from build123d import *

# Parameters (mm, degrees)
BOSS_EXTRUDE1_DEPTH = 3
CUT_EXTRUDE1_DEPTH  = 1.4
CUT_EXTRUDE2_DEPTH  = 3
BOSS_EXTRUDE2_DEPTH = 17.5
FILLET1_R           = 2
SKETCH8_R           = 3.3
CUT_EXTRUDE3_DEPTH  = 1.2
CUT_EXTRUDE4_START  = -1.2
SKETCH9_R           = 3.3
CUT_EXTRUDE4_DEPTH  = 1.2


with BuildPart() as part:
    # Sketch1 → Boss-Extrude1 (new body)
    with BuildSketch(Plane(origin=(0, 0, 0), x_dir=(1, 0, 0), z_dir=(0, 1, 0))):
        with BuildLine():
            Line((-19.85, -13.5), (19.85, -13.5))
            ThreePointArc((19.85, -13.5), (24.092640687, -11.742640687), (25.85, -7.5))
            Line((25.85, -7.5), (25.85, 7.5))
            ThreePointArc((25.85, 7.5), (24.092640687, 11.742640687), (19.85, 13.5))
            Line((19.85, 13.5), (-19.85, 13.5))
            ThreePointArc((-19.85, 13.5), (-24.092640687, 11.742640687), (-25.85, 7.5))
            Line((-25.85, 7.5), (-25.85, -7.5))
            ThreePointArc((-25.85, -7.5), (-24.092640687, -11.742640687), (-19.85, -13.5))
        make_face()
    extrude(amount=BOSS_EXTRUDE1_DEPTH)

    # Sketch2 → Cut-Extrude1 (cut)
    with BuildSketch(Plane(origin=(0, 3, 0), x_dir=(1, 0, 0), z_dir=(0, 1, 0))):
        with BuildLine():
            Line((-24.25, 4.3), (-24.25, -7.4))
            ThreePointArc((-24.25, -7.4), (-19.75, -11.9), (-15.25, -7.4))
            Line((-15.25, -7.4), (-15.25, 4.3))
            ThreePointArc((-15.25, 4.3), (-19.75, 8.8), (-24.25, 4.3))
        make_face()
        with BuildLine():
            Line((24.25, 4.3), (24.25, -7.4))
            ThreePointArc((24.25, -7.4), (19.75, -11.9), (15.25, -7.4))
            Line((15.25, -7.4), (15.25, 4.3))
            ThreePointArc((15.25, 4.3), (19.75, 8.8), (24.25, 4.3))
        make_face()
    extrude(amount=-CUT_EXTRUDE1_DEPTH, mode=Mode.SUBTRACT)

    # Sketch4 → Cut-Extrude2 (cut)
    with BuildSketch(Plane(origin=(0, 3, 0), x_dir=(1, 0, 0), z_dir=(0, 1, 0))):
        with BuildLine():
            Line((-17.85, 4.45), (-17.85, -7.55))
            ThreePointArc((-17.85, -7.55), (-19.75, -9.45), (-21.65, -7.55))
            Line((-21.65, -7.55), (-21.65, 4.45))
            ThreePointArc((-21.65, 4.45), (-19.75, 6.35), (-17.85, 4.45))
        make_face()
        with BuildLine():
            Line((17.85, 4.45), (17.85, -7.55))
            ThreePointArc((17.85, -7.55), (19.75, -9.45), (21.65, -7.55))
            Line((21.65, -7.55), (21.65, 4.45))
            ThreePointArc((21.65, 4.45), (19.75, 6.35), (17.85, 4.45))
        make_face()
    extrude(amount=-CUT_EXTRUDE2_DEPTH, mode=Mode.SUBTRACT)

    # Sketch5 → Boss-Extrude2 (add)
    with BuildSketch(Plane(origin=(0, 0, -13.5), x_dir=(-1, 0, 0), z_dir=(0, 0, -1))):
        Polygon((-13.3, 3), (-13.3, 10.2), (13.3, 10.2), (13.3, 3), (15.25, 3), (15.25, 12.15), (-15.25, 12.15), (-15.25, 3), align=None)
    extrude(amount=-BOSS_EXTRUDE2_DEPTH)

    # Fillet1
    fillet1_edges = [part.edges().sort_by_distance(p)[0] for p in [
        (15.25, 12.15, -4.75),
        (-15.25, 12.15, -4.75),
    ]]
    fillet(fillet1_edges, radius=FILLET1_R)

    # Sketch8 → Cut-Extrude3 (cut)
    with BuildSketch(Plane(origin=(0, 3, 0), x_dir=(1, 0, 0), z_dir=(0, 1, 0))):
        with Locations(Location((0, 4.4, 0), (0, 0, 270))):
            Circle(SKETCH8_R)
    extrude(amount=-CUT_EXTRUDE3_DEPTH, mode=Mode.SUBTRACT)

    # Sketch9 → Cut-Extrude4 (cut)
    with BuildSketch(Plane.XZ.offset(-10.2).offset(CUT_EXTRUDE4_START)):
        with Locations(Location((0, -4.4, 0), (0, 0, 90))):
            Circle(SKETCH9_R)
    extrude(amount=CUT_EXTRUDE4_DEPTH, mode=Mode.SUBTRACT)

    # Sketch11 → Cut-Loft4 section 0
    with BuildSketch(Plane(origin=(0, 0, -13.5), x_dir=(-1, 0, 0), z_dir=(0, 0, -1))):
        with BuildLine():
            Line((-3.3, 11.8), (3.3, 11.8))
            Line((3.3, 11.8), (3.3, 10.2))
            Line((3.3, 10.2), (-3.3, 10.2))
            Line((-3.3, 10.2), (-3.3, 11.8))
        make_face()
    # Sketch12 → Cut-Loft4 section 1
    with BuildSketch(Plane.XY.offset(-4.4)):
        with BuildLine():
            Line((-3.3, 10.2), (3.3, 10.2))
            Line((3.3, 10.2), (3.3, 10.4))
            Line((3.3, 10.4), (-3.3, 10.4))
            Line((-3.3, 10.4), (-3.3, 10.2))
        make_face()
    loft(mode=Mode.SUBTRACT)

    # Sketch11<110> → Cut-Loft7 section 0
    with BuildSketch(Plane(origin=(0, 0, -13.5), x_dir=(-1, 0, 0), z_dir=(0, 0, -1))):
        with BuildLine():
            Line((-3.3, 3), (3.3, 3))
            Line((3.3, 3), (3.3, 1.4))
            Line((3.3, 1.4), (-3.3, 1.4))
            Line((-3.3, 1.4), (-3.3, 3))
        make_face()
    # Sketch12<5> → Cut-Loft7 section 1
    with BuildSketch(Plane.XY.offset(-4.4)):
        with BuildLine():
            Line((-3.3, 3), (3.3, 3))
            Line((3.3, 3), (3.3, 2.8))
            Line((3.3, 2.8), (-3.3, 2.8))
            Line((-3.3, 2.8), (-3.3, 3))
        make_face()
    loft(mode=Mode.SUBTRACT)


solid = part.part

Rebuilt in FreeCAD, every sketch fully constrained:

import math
import FreeCAD as App
import Part
import Sketcher

V = App.Vector


def edges_at(feature, points):
    """Names of the edges that pass closest to the given points."""
    edges = feature.Shape.Edges
    near = lambda p: min(range(len(edges)), key=lambda i: edges[i].distToShape(Part.Vertex(*p))[0])
    return sorted({f"Edge{near(p) + 1}" for p in points})

doc = App.newDocument("Part")
body = doc.addObject("PartDesign::Body", "Body")

sketch1 = doc.addObject("Sketcher::SketchObject", "Sketch")
body.addObject(sketch1)
sketch1.AttachmentSupport = (doc.XZ_Plane, [""])
sketch1.MapMode = "FlatFace"
sketch1.addGeometry(Part.LineSegment(V(-20, 14, 0), V(20, 14, 0)), False)
sketch1.addGeometry(Part.ArcOfCircle(Part.Circle(V(20, 8, 0), V(0, 0, 1), 6), math.radians(0), math.radians(90)), False)
sketch1.addGeometry(Part.LineSegment(V(26, 8, 0), V(26, -8, 0)), False)
sketch1.addGeometry(Part.ArcOfCircle(Part.Circle(V(20, -8, 0), V(0, 0, 1), 6), math.radians(-90), math.radians(0)), False)
sketch1.addGeometry(Part.LineSegment(V(20, -14, 0), V(-20, -14, 0)), False)
sketch1.addGeometry(Part.ArcOfCircle(Part.Circle(V(-20, -8, 0), V(0, 0, 1), 6), math.radians(180), math.radians(270)), False)
sketch1.addGeometry(Part.LineSegment(V(-26, -8, 0), V(-26, 8, 0)), False)
sketch1.addGeometry(Part.ArcOfCircle(Part.Circle(V(-20, 8, 0), V(0, 0, 1), 6), math.radians(90), math.radians(180)), False)
sketch1.addConstraint(Sketcher.Constraint("Tangent", 0, 2, 1, 2))
sketch1.addConstraint(Sketcher.Constraint("Tangent", 1, 1, 2, 1))
sketch1.addConstraint(Sketcher.Constraint("Tangent", 2, 2, 3, 2))
sketch1.addConstraint(Sketcher.Constraint("Tangent", 3, 1, 4, 1))
sketch1.addConstraint(Sketcher.Constraint("Tangent", 4, 2, 5, 2))
sketch1.addConstraint(Sketcher.Constraint("Tangent", 5, 1, 6, 1))
sketch1.addConstraint(Sketcher.Constraint("Tangent", 6, 2, 7, 2))
sketch1.addConstraint(Sketcher.Constraint("Tangent", 7, 1, 0, 1))
sketch1.addConstraint(Sketcher.Constraint("Horizontal", 0))
sketch1.addConstraint(Sketcher.Constraint("Vertical", 2))
sketch1.addConstraint(Sketcher.Constraint("Horizontal", 4))
sketch1.addConstraint(Sketcher.Constraint("Vertical", 6))
sketch1.addConstraint(Sketcher.Constraint("Equal", 1, 3))
sketch1.addConstraint(Sketcher.Constraint("Equal", 3, 5))
sketch1.addConstraint(Sketcher.Constraint("Equal", 5, 7))
sketch1.addConstraint(Sketcher.Constraint("Symmetric", 1, 3, 5, 3, -1, 1))
sketch1.addConstraint(Sketcher.Constraint("Radius", 1, 6.0))
sketch1.addConstraint(Sketcher.Constraint("DistanceY", 2, 2, 2, 1, 15.0))
sketch1.addConstraint(Sketcher.Constraint("DistanceX", 0, 1, 0, 2, 39.7))
pad1 = doc.addObject("PartDesign::Pad", "Pad")
body.addObject(pad1)
pad1.Profile = sketch1
pad1.Length = 3
pad1.Reversed = True

sketch2 = doc.addObject("Sketcher::SketchObject", "Sketch001")
body.addObject(sketch2)
sketch2.AttachmentSupport = (doc.XZ_Plane, [""])
sketch2.MapMode = "FlatFace"
sketch2.AttachmentOffset = App.Placement(V(0, 0, -3), App.Rotation())
sketch2.addGeometry(Part.LineSegment(V(-24.2, -4.3, 0), V(-24.2, 7.4, 0)), False)
sketch2.addGeometry(Part.ArcOfCircle(Part.Circle(V(-19.8, 7.4, 0), V(0, 0, 1), 4.5), math.radians(0), math.radians(180)), False)
sketch2.addGeometry(Part.LineSegment(V(-15.2, 7.4, 0), V(-15.2, -4.3, 0)), False)
sketch2.addGeometry(Part.ArcOfCircle(Part.Circle(V(-19.8, -4.3, 0), V(0, 0, 1), 4.5), math.radians(180), math.radians(360)), False)
sketch2.addGeometry(Part.LineSegment(V(24.2, 7.4, 0), V(24.2, -4.3, 0)), False)
sketch2.addGeometry(Part.ArcOfCircle(Part.Circle(V(19.8, -4.3, 0), V(0, 0, 1), 4.5), math.radians(180), math.radians(360)), False)
sketch2.addGeometry(Part.LineSegment(V(15.2, -4.3, 0), V(15.2, 7.4, 0)), False)
sketch2.addGeometry(Part.ArcOfCircle(Part.Circle(V(19.8, 7.4, 0), V(0, 0, 1), 4.5), math.radians(0), math.radians(180)), False)
sketch2.addConstraint(Sketcher.Constraint("Tangent", 0, 2, 1, 2))
sketch2.addConstraint(Sketcher.Constraint("Tangent", 1, 1, 2, 1))
sketch2.addConstraint(Sketcher.Constraint("Tangent", 2, 2, 3, 2))
sketch2.addConstraint(Sketcher.Constraint("Tangent", 3, 1, 0, 1))
sketch2.addConstraint(Sketcher.Constraint("Tangent", 4, 2, 5, 2))
sketch2.addConstraint(Sketcher.Constraint("Tangent", 5, 1, 6, 1))
sketch2.addConstraint(Sketcher.Constraint("Tangent", 6, 2, 7, 2))
sketch2.addConstraint(Sketcher.Constraint("Tangent", 7, 1, 4, 1))
sketch2.addConstraint(Sketcher.Constraint("Vertical", 0))
sketch2.addConstraint(Sketcher.Constraint("Vertical", 2))
sketch2.addConstraint(Sketcher.Constraint("Vertical", 4))
sketch2.addConstraint(Sketcher.Constraint("Vertical", 6))
sketch2.addConstraint(Sketcher.Constraint("Equal", 3, 5))
sketch2.addConstraint(Sketcher.Constraint("Symmetric", 3, 3, 5, 3, -2))
sketch2.addConstraint(Sketcher.Constraint("Horizontal", 1, 3, 7, 3))
sketch2.addConstraint(Sketcher.Constraint("Radius", 1, 4.5))
sketch2.addConstraint(Sketcher.Constraint("DistanceY", 0, 1, 0, 2, 11.7))
sketch2.addConstraint(Sketcher.Constraint("DistanceX", 0, 2, 7, 3, 44.0))
sketch2.addConstraint(Sketcher.Constraint("DistanceY", -1, 1, 1, 3, 7.4))
pocket1 = doc.addObject("PartDesign::Pocket", "Pocket")
body.addObject(pocket1)
pocket1.Profile = sketch2
pocket1.Length = 1.4
pocket1.Reversed = True

sketch3 = doc.addObject("Sketcher::SketchObject", "Sketch002")
body.addObject(sketch3)
sketch3.AttachmentSupport = (doc.XZ_Plane, [""])
sketch3.MapMode = "FlatFace"
sketch3.AttachmentOffset = App.Placement(V(0, 0, -3), App.Rotation())
sketch3.addGeometry(Part.LineSegment(V(-17.9, 7.5, 0), V(-17.9, -4.5, 0)), False)
sketch3.addGeometry(Part.ArcOfCircle(Part.Circle(V(-19.8, -4.5, 0), V(0, 0, 1), 1.9), math.radians(180), math.radians(360)), False)
sketch3.addGeometry(Part.LineSegment(V(-21.6, -4.5, 0), V(-21.6, 7.5, 0)), False)
sketch3.addGeometry(Part.ArcOfCircle(Part.Circle(V(-19.8, 7.5, 0), V(0, 0, 1), 1.9), math.radians(0), math.radians(180)), False)
sketch3.addGeometry(Part.LineSegment(V(17.9, -4.5, 0), V(17.9, 7.5, 0)), False)
sketch3.addGeometry(Part.ArcOfCircle(Part.Circle(V(19.8, 7.5, 0), V(0, 0, 1), 1.9), math.radians(0), math.radians(180)), False)
sketch3.addGeometry(Part.LineSegment(V(21.6, 7.5, 0), V(21.6, -4.5, 0)), False)
sketch3.addGeometry(Part.ArcOfCircle(Part.Circle(V(19.8, -4.5, 0), V(0, 0, 1), 1.9), math.radians(180), math.radians(360)), False)
sketch3.addConstraint(Sketcher.Constraint("Tangent", 0, 2, 1, 2))
sketch3.addConstraint(Sketcher.Constraint("Tangent", 1, 1, 2, 1))
sketch3.addConstraint(Sketcher.Constraint("Tangent", 2, 2, 3, 2))
sketch3.addConstraint(Sketcher.Constraint("Tangent", 3, 1, 0, 1))
sketch3.addConstraint(Sketcher.Constraint("Tangent", 4, 2, 5, 2))
sketch3.addConstraint(Sketcher.Constraint("Tangent", 5, 1, 6, 1))
sketch3.addConstraint(Sketcher.Constraint("Tangent", 6, 2, 7, 2))
sketch3.addConstraint(Sketcher.Constraint("Tangent", 7, 1, 4, 1))
sketch3.addConstraint(Sketcher.Constraint("Vertical", 0))
sketch3.addConstraint(Sketcher.Constraint("Vertical", 2))
sketch3.addConstraint(Sketcher.Constraint("Vertical", 4))
sketch3.addConstraint(Sketcher.Constraint("Vertical", 6))
sketch3.addConstraint(Sketcher.Constraint("Equal", 3, 5))
sketch3.addConstraint(Sketcher.Constraint("Symmetric", 3, 3, 5, 3, -2))
sketch3.addConstraint(Sketcher.Constraint("Horizontal", 1, 3, 7, 3))
sketch3.addConstraint(Sketcher.Constraint("Radius", 1, 1.9))
sketch3.addConstraint(Sketcher.Constraint("DistanceY", 0, 2, 0, 1, 12.0))
sketch3.addConstraint(Sketcher.Constraint("DistanceX", 3, 3, 5, 3, 39.5))
sketch3.addConstraint(Sketcher.Constraint("DistanceY", 1, 3, -1, 1, 4.45))
pocket2 = doc.addObject("PartDesign::Pocket", "Pocket001")
body.addObject(pocket2)
pocket2.Profile = sketch3
pocket2.Length = 3
pocket2.Reversed = True

sketch4 = doc.addObject("Sketcher::SketchObject", "Sketch003")
body.addObject(sketch4)
sketch4.AttachmentSupport = (doc.XY_Plane, [""])
sketch4.MapMode = "FlatFace"
sketch4.AttachmentOffset = App.Placement(V(0, 0, -13.5), App.Rotation())
sketch4.addGeometry(Part.LineSegment(V(13.3, 3, 0), V(13.3, 10.2, 0)), False)
sketch4.addGeometry(Part.LineSegment(V(13.3, 10.2, 0), V(-13.3, 10.2, 0)), False)
sketch4.addGeometry(Part.LineSegment(V(-13.3, 10.2, 0), V(-13.3, 3, 0)), False)
sketch4.addGeometry(Part.LineSegment(V(-13.3, 3, 0), V(-15.2, 3, 0)), False)
sketch4.addGeometry(Part.LineSegment(V(-15.2, 3, 0), V(-15.2, 12.2, 0)), False)
sketch4.addGeometry(Part.LineSegment(V(-15.2, 12.2, 0), V(15.2, 12.2, 0)), False)
sketch4.addGeometry(Part.LineSegment(V(15.2, 12.2, 0), V(15.2, 3, 0)), False)
sketch4.addGeometry(Part.LineSegment(V(15.2, 3, 0), V(13.3, 3, 0)), False)
sketch4.addConstraint(Sketcher.Constraint("Coincident", 0, 2, 1, 1))
sketch4.addConstraint(Sketcher.Constraint("Coincident", 1, 2, 2, 1))
sketch4.addConstraint(Sketcher.Constraint("Coincident", 2, 2, 3, 1))
sketch4.addConstraint(Sketcher.Constraint("Coincident", 3, 2, 4, 1))
sketch4.addConstraint(Sketcher.Constraint("Coincident", 4, 2, 5, 1))
sketch4.addConstraint(Sketcher.Constraint("Coincident", 5, 2, 6, 1))
sketch4.addConstraint(Sketcher.Constraint("Coincident", 6, 2, 7, 1))
sketch4.addConstraint(Sketcher.Constraint("Coincident", 7, 2, 0, 1))
sketch4.addConstraint(Sketcher.Constraint("Vertical", 0))
sketch4.addConstraint(Sketcher.Constraint("Horizontal", 1))
sketch4.addConstraint(Sketcher.Constraint("Vertical", 2))
sketch4.addConstraint(Sketcher.Constraint("Horizontal", 3))
sketch4.addConstraint(Sketcher.Constraint("Vertical", 4))
sketch4.addConstraint(Sketcher.Constraint("Horizontal", 5))
sketch4.addConstraint(Sketcher.Constraint("Vertical", 6))
sketch4.addConstraint(Sketcher.Constraint("Horizontal", 7))
sketch4.addConstraint(Sketcher.Constraint("Symmetric", 3, 2, 6, 2, -2))
sketch4.addConstraint(Sketcher.Constraint("Equal", 3, 7))
sketch4.addConstraint(Sketcher.Constraint("DistanceX", 1, 2, 1, 1, 26.6))
sketch4.addConstraint(Sketcher.Constraint("DistanceX", 5, 1, 5, 2, 30.5))
sketch4.addConstraint(Sketcher.Constraint("DistanceY", 0, 1, 0, 2, 7.2))
sketch4.addConstraint(Sketcher.Constraint("DistanceY", -1, 1, 2, 2, 3.0))
sketch4.addConstraint(Sketcher.Constraint("DistanceY", 4, 1, 4, 2, 9.15))
pad2 = doc.addObject("PartDesign::Pad", "Pad001")
body.addObject(pad2)
pad2.Profile = sketch4
pad2.Length = 17.5
doc.recompute()

fillet = doc.addObject("PartDesign::Fillet", "Fillet")
body.addObject(fillet)
fillet.Base = (pad2, edges_at(pad2, [(15.25, 12.15, -4.75), (-15.25, 12.15, -4.75)]))
fillet.Radius = 2

sketch5 = doc.addObject("Sketcher::SketchObject", "Sketch004")
body.addObject(sketch5)
sketch5.AttachmentSupport = (doc.XZ_Plane, [""])
sketch5.MapMode = "FlatFace"
sketch5.AttachmentOffset = App.Placement(V(0, 0, -3), App.Rotation())
sketch5.addGeometry(Part.Circle(V(0, -4.4, 0), V(0, 0, 1), 3.3), False)
sketch5.addConstraint(Sketcher.Constraint("PointOnObject", 0, 3, -2))
sketch5.addConstraint(Sketcher.Constraint("Diameter", 0, 6.6))
sketch5.addConstraint(Sketcher.Constraint("DistanceY", 0, 3, -1, 1, 4.4))
pocket3 = doc.addObject("PartDesign::Pocket", "Pocket002")
body.addObject(pocket3)
pocket3.Profile = sketch5
pocket3.Length = 1.2
pocket3.Reversed = True

sketch6 = doc.addObject("Sketcher::SketchObject", "Sketch005")
body.addObject(sketch6)
sketch6.AttachmentSupport = (doc.XZ_Plane, [""])
sketch6.MapMode = "FlatFace"
sketch6.AttachmentOffset = App.Placement(V(0, 0, -11.4), App.Rotation())
sketch6.addGeometry(Part.Circle(V(0, -4.4, 0), V(0, 0, 1), 3.3), False)
sketch6.addConstraint(Sketcher.Constraint("PointOnObject", 0, 3, -2))
sketch6.addConstraint(Sketcher.Constraint("Diameter", 0, 6.6))
sketch6.addConstraint(Sketcher.Constraint("DistanceY", 0, 3, -1, 1, 4.4))
pocket4 = doc.addObject("PartDesign::Pocket", "Pocket003")
body.addObject(pocket4)
pocket4.Profile = sketch6
pocket4.Length = 1.2
pocket4.Reversed = True

sketch7 = doc.addObject("Sketcher::SketchObject", "Sketch006")
body.addObject(sketch7)
sketch7.AttachmentSupport = (doc.XY_Plane, [""])
sketch7.MapMode = "FlatFace"
sketch7.AttachmentOffset = App.Placement(V(0, 0, -13.5), App.Rotation())
sketch7.addGeometry(Part.LineSegment(V(-3.3, 11.8, 0), V(3.3, 11.8, 0)), False)
sketch7.addGeometry(Part.LineSegment(V(3.3, 11.8, 0), V(3.3, 10.2, 0)), False)
sketch7.addGeometry(Part.LineSegment(V(3.3, 10.2, 0), V(-3.3, 10.2, 0)), False)
sketch7.addGeometry(Part.LineSegment(V(-3.3, 10.2, 0), V(-3.3, 11.8, 0)), False)
sketch7.addConstraint(Sketcher.Constraint("Coincident", 0, 2, 1, 1))
sketch7.addConstraint(Sketcher.Constraint("Coincident", 1, 2, 2, 1))
sketch7.addConstraint(Sketcher.Constraint("Coincident", 2, 2, 3, 1))
sketch7.addConstraint(Sketcher.Constraint("Coincident", 3, 2, 0, 1))
sketch7.addConstraint(Sketcher.Constraint("Horizontal", 0))
sketch7.addConstraint(Sketcher.Constraint("Vertical", 1))
sketch7.addConstraint(Sketcher.Constraint("Horizontal", 2))
sketch7.addConstraint(Sketcher.Constraint("Vertical", 3))
sketch7.addConstraint(Sketcher.Constraint("DistanceX", 0, 1, 0, 2, 6.6))
sketch7.addConstraint(Sketcher.Constraint("DistanceY", 1, 2, 1, 1, 1.6))
sketch7.addConstraint(Sketcher.Constraint("DistanceX", -1, 1, 0, 2, 3.3))
sketch7.addConstraint(Sketcher.Constraint("DistanceY", -1, 1, 0, 2, 11.8))

sketch8 = doc.addObject("Sketcher::SketchObject", "Sketch007")
body.addObject(sketch8)
sketch8.AttachmentSupport = (doc.XY_Plane, [""])
sketch8.MapMode = "FlatFace"
sketch8.AttachmentOffset = App.Placement(V(0, 0, -4.4), App.Rotation())
sketch8.addGeometry(Part.LineSegment(V(-3.3, 10.2, 0), V(3.3, 10.2, 0)), False)
sketch8.addGeometry(Part.LineSegment(V(3.3, 10.2, 0), V(3.3, 10.4, 0)), False)
sketch8.addGeometry(Part.LineSegment(V(3.3, 10.4, 0), V(-3.3, 10.4, 0)), False)
sketch8.addGeometry(Part.LineSegment(V(-3.3, 10.4, 0), V(-3.3, 10.2, 0)), False)
sketch8.addConstraint(Sketcher.Constraint("Coincident", 0, 2, 1, 1))
sketch8.addConstraint(Sketcher.Constraint("Coincident", 1, 2, 2, 1))
sketch8.addConstraint(Sketcher.Constraint("Coincident", 2, 2, 3, 1))
sketch8.addConstraint(Sketcher.Constraint("Coincident", 3, 2, 0, 1))
sketch8.addConstraint(Sketcher.Constraint("Horizontal", 0))
sketch8.addConstraint(Sketcher.Constraint("Vertical", 1))
sketch8.addConstraint(Sketcher.Constraint("Horizontal", 2))
sketch8.addConstraint(Sketcher.Constraint("Vertical", 3))
sketch8.addConstraint(Sketcher.Constraint("DistanceX", 0, 1, 0, 2, 6.6))
sketch8.addConstraint(Sketcher.Constraint("DistanceY", 1, 1, 1, 2, 0.2))
sketch8.addConstraint(Sketcher.Constraint("DistanceX", -1, 1, 0, 2, 3.3))
sketch8.addConstraint(Sketcher.Constraint("DistanceY", -1, 1, 0, 2, 10.2))

subtractiveloft = doc.addObject("PartDesign::SubtractiveLoft", "SubtractiveLoft")
body.addObject(subtractiveloft)
subtractiveloft.Profile = sketch7
subtractiveloft.Sections = [sketch8]

sketch9 = doc.addObject("Sketcher::SketchObject", "Sketch008")
body.addObject(sketch9)
sketch9.AttachmentSupport = (doc.XY_Plane, [""])
sketch9.MapMode = "FlatFace"
sketch9.AttachmentOffset = App.Placement(V(0, 0, -13.5), App.Rotation())
sketch9.addGeometry(Part.LineSegment(V(-3.3, 3, 0), V(3.3, 3, 0)), False)
sketch9.addGeometry(Part.LineSegment(V(3.3, 3, 0), V(3.3, 1.4, 0)), False)
sketch9.addGeometry(Part.LineSegment(V(3.3, 1.4, 0), V(-3.3, 1.4, 0)), False)
sketch9.addGeometry(Part.LineSegment(V(-3.3, 1.4, 0), V(-3.3, 3, 0)), False)
sketch9.addConstraint(Sketcher.Constraint("Coincident", 0, 2, 1, 1))
sketch9.addConstraint(Sketcher.Constraint("Coincident", 1, 2, 2, 1))
sketch9.addConstraint(Sketcher.Constraint("Coincident", 2, 2, 3, 1))
sketch9.addConstraint(Sketcher.Constraint("Coincident", 3, 2, 0, 1))
sketch9.addConstraint(Sketcher.Constraint("Horizontal", 0))
sketch9.addConstraint(Sketcher.Constraint("Vertical", 1))
sketch9.addConstraint(Sketcher.Constraint("Horizontal", 2))
sketch9.addConstraint(Sketcher.Constraint("Vertical", 3))
sketch9.addConstraint(Sketcher.Constraint("DistanceX", 0, 1, 0, 2, 6.6))
sketch9.addConstraint(Sketcher.Constraint("DistanceY", 1, 2, 1, 1, 1.6))
sketch9.addConstraint(Sketcher.Constraint("DistanceY", -1, 1, 0, 2, 3.0))
sketch9.addConstraint(Sketcher.Constraint("DistanceX", -1, 1, 0, 2, 3.3))

sketch10 = doc.addObject("Sketcher::SketchObject", "Sketch009")
body.addObject(sketch10)
sketch10.AttachmentSupport = (doc.XY_Plane, [""])
sketch10.MapMode = "FlatFace"
sketch10.AttachmentOffset = App.Placement(V(0, 0, -4.4), App.Rotation())
sketch10.addGeometry(Part.LineSegment(V(3.3, 3, 0), V(-3.3, 3, 0)), False)
sketch10.addGeometry(Part.LineSegment(V(-3.3, 3, 0), V(-3.3, 2.8, 0)), False)
sketch10.addGeometry(Part.LineSegment(V(-3.3, 2.8, 0), V(3.3, 2.8, 0)), False)
sketch10.addGeometry(Part.LineSegment(V(3.3, 2.8, 0), V(3.3, 3, 0)), False)
sketch10.addConstraint(Sketcher.Constraint("Coincident", 0, 2, 1, 1))
sketch10.addConstraint(Sketcher.Constraint("Coincident", 1, 2, 2, 1))
sketch10.addConstraint(Sketcher.Constraint("Coincident", 2, 2, 3, 1))
sketch10.addConstraint(Sketcher.Constraint("Coincident", 3, 2, 0, 1))
sketch10.addConstraint(Sketcher.Constraint("Horizontal", 0))
sketch10.addConstraint(Sketcher.Constraint("Vertical", 1))
sketch10.addConstraint(Sketcher.Constraint("Horizontal", 2))
sketch10.addConstraint(Sketcher.Constraint("Vertical", 3))
sketch10.addConstraint(Sketcher.Constraint("DistanceX", 0, 2, 0, 1, 6.6))
sketch10.addConstraint(Sketcher.Constraint("DistanceY", 1, 2, 1, 1, 0.2))
sketch10.addConstraint(Sketcher.Constraint("DistanceY", -1, 1, 0, 2, 3.0))
sketch10.addConstraint(Sketcher.Constraint("DistanceX", 0, 2, -1, 1, 3.3))

subtractiveloft2 = doc.addObject("PartDesign::SubtractiveLoft", "SubtractiveLoft001")
body.addObject(subtractiveloft2)
subtractiveloft2.Profile = sketch9
subtractiveloft2.Sections = [sketch10]

doc.recompute()
